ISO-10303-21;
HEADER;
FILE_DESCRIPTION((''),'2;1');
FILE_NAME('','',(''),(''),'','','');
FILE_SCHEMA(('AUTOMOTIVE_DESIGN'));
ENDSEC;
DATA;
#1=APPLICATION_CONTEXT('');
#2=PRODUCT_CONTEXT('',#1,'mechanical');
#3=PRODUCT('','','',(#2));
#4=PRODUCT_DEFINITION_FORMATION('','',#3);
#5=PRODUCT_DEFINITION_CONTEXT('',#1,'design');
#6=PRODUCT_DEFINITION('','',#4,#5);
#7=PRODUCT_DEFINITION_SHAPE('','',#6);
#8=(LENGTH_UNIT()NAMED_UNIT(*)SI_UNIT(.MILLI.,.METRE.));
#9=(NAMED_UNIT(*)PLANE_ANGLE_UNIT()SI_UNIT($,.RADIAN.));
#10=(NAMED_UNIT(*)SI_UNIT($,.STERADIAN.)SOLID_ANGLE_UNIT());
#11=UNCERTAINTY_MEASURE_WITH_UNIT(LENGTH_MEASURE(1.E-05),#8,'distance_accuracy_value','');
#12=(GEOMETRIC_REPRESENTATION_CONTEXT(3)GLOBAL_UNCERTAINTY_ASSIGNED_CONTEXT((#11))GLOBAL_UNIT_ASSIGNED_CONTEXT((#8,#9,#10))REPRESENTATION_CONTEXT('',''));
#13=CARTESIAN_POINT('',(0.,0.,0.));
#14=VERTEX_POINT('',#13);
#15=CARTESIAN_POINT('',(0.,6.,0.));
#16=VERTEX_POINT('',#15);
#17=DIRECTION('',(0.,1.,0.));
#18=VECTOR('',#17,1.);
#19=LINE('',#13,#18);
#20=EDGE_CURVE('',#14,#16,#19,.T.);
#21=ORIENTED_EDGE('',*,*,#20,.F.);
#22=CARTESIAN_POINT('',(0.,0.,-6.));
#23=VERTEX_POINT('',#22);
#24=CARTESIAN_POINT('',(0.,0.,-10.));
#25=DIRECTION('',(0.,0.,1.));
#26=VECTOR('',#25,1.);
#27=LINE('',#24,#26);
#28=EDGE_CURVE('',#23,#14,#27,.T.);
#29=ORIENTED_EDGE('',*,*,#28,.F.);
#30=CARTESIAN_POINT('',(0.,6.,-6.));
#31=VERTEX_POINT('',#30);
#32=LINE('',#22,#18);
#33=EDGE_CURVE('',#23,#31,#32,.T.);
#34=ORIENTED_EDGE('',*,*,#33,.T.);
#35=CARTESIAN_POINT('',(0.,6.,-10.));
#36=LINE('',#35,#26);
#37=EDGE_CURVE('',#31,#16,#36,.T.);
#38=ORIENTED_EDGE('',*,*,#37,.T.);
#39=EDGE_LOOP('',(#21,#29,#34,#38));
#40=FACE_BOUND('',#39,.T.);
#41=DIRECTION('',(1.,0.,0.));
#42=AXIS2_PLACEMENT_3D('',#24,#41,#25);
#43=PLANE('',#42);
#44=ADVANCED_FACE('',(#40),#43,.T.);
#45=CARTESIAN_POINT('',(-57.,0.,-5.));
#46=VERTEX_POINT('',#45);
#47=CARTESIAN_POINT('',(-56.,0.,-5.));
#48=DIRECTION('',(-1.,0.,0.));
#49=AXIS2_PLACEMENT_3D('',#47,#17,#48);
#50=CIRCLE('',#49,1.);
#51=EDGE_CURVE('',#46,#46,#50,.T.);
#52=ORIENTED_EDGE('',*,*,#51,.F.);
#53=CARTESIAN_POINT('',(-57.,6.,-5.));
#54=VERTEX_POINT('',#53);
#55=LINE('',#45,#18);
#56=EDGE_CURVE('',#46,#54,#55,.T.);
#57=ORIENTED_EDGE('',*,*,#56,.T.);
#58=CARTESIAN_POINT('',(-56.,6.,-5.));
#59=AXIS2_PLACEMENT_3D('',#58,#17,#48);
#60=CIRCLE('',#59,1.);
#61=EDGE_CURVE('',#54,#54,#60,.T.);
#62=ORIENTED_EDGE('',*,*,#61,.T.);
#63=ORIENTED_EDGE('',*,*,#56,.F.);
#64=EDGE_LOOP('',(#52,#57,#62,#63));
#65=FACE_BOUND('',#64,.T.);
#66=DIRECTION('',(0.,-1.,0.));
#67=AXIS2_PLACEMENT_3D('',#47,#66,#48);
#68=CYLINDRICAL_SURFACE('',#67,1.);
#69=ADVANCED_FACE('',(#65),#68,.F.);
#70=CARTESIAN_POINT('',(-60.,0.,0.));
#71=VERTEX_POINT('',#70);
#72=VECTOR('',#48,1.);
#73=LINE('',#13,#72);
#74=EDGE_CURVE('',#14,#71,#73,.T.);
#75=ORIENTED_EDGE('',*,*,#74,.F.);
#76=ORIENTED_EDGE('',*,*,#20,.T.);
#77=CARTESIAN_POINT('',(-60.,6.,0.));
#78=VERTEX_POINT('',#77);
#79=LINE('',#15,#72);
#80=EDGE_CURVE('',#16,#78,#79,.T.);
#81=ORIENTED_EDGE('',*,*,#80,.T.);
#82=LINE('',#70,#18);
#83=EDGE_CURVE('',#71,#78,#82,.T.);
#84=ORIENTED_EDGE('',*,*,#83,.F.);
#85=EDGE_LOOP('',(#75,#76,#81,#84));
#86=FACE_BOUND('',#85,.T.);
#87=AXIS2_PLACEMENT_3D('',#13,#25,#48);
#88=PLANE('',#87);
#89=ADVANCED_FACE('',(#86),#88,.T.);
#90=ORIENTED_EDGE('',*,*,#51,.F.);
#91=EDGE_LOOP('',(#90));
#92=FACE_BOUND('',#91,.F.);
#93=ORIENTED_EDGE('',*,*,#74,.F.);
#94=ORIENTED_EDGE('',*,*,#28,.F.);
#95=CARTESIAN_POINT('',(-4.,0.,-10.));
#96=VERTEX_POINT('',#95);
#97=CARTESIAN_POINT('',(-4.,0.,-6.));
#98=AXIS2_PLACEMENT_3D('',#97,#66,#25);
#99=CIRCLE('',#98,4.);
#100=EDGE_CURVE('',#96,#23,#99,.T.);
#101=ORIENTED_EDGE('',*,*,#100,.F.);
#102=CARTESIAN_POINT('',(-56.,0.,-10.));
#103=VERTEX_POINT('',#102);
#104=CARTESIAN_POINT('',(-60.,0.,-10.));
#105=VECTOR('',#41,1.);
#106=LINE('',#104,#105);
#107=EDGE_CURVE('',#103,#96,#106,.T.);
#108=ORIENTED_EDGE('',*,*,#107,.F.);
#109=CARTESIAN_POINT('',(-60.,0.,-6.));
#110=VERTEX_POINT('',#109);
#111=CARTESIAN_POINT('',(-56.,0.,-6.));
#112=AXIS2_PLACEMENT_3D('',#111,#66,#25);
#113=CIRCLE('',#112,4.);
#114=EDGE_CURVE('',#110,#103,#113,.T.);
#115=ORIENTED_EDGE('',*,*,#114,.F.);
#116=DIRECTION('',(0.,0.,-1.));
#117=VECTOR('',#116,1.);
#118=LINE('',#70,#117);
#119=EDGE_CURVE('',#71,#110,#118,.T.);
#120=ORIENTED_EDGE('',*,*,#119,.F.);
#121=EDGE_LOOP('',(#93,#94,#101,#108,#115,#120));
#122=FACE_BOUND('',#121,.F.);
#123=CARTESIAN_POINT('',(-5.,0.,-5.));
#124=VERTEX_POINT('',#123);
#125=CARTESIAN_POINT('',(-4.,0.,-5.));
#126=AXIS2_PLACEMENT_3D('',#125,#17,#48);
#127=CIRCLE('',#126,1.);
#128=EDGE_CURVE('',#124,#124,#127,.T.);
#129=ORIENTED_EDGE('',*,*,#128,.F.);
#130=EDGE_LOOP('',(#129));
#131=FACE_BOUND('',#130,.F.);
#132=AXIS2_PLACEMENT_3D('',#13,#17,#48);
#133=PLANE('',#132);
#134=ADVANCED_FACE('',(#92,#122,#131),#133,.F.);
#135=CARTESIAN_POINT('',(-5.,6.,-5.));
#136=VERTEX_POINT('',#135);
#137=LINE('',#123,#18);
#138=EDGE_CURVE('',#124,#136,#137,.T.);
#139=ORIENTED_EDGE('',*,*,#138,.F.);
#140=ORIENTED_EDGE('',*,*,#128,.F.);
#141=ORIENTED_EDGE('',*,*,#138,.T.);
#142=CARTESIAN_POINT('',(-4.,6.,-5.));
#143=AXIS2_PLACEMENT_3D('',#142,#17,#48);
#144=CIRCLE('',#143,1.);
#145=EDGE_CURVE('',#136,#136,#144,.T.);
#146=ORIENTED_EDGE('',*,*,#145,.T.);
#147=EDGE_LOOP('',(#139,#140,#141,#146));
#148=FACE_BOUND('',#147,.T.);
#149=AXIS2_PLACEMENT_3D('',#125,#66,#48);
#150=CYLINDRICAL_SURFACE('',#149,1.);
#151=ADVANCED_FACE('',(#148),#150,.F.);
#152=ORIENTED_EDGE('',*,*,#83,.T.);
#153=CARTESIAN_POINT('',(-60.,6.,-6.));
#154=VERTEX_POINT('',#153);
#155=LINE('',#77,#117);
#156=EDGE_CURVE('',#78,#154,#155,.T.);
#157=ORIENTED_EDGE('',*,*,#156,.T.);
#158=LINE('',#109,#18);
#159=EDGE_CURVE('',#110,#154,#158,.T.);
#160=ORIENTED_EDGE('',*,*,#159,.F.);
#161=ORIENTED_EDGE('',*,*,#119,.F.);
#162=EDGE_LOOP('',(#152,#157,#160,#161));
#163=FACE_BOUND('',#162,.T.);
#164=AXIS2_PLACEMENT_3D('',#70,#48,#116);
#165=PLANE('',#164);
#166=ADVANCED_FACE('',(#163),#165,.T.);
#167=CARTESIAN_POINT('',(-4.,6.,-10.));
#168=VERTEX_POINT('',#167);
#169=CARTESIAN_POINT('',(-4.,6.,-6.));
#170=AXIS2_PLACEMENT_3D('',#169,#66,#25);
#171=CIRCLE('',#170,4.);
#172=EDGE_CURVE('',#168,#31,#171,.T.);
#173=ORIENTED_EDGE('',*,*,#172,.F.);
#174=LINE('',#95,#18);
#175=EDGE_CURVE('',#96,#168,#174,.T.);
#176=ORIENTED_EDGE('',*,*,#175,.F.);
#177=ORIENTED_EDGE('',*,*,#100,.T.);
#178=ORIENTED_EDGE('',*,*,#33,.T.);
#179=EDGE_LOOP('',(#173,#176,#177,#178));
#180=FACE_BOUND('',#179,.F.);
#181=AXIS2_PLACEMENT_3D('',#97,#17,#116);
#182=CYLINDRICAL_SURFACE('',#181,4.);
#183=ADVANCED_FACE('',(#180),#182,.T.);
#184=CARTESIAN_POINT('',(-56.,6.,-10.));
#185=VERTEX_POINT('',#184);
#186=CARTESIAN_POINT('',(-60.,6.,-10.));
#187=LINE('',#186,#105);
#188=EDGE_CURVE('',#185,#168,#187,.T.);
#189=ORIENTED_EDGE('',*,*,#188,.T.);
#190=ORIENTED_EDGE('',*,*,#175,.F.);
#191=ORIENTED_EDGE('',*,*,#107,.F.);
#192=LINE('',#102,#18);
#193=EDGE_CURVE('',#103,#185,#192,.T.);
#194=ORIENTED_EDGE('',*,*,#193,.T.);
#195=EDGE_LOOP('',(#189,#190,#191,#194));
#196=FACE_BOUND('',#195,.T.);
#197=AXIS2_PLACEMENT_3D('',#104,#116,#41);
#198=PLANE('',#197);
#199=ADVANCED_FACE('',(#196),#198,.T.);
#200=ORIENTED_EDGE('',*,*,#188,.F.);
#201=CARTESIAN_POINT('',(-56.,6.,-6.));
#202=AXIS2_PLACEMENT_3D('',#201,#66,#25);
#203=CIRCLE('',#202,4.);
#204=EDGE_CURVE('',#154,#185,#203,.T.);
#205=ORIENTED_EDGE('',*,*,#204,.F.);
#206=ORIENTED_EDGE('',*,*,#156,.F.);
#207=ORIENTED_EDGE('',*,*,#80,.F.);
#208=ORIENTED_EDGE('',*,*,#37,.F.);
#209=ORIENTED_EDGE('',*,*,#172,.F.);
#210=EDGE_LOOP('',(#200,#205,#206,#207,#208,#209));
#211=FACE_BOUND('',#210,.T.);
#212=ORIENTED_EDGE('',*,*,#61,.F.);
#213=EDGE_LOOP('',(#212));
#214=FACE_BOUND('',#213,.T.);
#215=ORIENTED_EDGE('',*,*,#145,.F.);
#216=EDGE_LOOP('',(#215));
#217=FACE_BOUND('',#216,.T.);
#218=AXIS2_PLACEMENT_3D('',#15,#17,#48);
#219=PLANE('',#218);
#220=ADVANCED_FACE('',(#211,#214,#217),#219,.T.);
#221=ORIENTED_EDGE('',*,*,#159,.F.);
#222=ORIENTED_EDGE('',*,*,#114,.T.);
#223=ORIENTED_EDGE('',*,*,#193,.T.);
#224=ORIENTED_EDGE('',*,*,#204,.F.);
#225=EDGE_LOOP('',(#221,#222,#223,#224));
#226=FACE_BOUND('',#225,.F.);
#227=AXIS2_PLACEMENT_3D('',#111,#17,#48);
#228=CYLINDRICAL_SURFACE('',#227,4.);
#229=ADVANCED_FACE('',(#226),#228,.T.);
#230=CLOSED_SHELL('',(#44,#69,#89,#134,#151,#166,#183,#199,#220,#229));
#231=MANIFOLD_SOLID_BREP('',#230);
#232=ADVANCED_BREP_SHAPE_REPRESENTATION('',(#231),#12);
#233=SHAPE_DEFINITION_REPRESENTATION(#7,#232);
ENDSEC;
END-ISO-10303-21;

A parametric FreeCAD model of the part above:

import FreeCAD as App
import Part
import Sketcher


def edges_at(feature, points):
    """Names of the edges that pass closest to the given points."""
    edges = feature.Shape.Edges
    near = lambda p: min(range(len(edges)), key=lambda i: edges[i].distToShape(Part.Vertex(*p))[0])
    return sorted({f"Edge{near(p) + 1}" for p in points})

doc = App.newDocument("Part")
body = doc.addObject("PartDesign::Body", "Body")

sketch1 = body.newObject("Sketcher::SketchObject", "Sketch")
sketch1.AttachmentSupport = (doc.getObject("XZ_Plane"), [""])
sketch1.MapMode = "FlatFace"
sketch1.addGeometry([
    Part.LineSegment(App.Vector(-60, 0, 0), App.Vector(0, 0, 0)),
    Part.LineSegment(App.Vector(0, 0, 0), App.Vector(0, -10, 0)),
    Part.LineSegment(App.Vector(0, -10, 0), App.Vector(-60, -10, 0)),
    Part.LineSegment(App.Vector(-60, -10, 0), App.Vector(-60, 0, 0)),
    Part.Circle(App.Vector(-4, -5, 0), App.Vector(0, 0, 1), 1),
    Part.Circle(App.Vector(-56, -5, 0), App.Vector(0, 0, 1), 1),
], False)
sketch1.addConstraint([
    Sketcher.Constraint("Coincident", 0, 2, 1, 1),
    Sketcher.Constraint("Coincident", 1, 2, 2, 1),
    Sketcher.Constraint("Coincident", 2, 2, 3, 1),
    Sketcher.Constraint("Coincident", 3, 2, 0, 1),
    Sketcher.Constraint("Horizontal", 0),
    Sketcher.Constraint("Vertical", 1),
    Sketcher.Constraint("Horizontal", 2),
    Sketcher.Constraint("Vertical", 3),
    Sketcher.Constraint("Coincident", 0, 2, -1, 1),
    Sketcher.Constraint("Equal", 4, 5),
    Sketcher.Constraint("Horizontal", 4, 3, 5, 3),
    Sketcher.Constraint("Diameter", 4, 2.0),
    Sketcher.Constraint("DistanceX", 0, 1, 0, 2, 60.0),
    Sketcher.Constraint("DistanceY", 1, 2, 1, 1, 10.0),
    Sketcher.Constraint("DistanceX", 4, 3, -1, 1, 4.0),
    Sketcher.Constraint("DistanceX", 2, 2, 5, 3, 4.0),
    Sketcher.Constraint("DistanceY", 4, 3, -1, 1, 5.0),
])
pad1 = body.newObject("PartDesign::Pad", "Pad")
pad1.Profile = sketch1
pad1.Length = 6
pad1.Reversed = True
doc.recompute()

fillet = body.newObject("PartDesign::Fillet", "Fillet")
fillet.Base = (pad1, edges_at(pad1, [(0, 3, -10), (-60, 3, -10)]))
fillet.Radius = 4

doc.recompute()
